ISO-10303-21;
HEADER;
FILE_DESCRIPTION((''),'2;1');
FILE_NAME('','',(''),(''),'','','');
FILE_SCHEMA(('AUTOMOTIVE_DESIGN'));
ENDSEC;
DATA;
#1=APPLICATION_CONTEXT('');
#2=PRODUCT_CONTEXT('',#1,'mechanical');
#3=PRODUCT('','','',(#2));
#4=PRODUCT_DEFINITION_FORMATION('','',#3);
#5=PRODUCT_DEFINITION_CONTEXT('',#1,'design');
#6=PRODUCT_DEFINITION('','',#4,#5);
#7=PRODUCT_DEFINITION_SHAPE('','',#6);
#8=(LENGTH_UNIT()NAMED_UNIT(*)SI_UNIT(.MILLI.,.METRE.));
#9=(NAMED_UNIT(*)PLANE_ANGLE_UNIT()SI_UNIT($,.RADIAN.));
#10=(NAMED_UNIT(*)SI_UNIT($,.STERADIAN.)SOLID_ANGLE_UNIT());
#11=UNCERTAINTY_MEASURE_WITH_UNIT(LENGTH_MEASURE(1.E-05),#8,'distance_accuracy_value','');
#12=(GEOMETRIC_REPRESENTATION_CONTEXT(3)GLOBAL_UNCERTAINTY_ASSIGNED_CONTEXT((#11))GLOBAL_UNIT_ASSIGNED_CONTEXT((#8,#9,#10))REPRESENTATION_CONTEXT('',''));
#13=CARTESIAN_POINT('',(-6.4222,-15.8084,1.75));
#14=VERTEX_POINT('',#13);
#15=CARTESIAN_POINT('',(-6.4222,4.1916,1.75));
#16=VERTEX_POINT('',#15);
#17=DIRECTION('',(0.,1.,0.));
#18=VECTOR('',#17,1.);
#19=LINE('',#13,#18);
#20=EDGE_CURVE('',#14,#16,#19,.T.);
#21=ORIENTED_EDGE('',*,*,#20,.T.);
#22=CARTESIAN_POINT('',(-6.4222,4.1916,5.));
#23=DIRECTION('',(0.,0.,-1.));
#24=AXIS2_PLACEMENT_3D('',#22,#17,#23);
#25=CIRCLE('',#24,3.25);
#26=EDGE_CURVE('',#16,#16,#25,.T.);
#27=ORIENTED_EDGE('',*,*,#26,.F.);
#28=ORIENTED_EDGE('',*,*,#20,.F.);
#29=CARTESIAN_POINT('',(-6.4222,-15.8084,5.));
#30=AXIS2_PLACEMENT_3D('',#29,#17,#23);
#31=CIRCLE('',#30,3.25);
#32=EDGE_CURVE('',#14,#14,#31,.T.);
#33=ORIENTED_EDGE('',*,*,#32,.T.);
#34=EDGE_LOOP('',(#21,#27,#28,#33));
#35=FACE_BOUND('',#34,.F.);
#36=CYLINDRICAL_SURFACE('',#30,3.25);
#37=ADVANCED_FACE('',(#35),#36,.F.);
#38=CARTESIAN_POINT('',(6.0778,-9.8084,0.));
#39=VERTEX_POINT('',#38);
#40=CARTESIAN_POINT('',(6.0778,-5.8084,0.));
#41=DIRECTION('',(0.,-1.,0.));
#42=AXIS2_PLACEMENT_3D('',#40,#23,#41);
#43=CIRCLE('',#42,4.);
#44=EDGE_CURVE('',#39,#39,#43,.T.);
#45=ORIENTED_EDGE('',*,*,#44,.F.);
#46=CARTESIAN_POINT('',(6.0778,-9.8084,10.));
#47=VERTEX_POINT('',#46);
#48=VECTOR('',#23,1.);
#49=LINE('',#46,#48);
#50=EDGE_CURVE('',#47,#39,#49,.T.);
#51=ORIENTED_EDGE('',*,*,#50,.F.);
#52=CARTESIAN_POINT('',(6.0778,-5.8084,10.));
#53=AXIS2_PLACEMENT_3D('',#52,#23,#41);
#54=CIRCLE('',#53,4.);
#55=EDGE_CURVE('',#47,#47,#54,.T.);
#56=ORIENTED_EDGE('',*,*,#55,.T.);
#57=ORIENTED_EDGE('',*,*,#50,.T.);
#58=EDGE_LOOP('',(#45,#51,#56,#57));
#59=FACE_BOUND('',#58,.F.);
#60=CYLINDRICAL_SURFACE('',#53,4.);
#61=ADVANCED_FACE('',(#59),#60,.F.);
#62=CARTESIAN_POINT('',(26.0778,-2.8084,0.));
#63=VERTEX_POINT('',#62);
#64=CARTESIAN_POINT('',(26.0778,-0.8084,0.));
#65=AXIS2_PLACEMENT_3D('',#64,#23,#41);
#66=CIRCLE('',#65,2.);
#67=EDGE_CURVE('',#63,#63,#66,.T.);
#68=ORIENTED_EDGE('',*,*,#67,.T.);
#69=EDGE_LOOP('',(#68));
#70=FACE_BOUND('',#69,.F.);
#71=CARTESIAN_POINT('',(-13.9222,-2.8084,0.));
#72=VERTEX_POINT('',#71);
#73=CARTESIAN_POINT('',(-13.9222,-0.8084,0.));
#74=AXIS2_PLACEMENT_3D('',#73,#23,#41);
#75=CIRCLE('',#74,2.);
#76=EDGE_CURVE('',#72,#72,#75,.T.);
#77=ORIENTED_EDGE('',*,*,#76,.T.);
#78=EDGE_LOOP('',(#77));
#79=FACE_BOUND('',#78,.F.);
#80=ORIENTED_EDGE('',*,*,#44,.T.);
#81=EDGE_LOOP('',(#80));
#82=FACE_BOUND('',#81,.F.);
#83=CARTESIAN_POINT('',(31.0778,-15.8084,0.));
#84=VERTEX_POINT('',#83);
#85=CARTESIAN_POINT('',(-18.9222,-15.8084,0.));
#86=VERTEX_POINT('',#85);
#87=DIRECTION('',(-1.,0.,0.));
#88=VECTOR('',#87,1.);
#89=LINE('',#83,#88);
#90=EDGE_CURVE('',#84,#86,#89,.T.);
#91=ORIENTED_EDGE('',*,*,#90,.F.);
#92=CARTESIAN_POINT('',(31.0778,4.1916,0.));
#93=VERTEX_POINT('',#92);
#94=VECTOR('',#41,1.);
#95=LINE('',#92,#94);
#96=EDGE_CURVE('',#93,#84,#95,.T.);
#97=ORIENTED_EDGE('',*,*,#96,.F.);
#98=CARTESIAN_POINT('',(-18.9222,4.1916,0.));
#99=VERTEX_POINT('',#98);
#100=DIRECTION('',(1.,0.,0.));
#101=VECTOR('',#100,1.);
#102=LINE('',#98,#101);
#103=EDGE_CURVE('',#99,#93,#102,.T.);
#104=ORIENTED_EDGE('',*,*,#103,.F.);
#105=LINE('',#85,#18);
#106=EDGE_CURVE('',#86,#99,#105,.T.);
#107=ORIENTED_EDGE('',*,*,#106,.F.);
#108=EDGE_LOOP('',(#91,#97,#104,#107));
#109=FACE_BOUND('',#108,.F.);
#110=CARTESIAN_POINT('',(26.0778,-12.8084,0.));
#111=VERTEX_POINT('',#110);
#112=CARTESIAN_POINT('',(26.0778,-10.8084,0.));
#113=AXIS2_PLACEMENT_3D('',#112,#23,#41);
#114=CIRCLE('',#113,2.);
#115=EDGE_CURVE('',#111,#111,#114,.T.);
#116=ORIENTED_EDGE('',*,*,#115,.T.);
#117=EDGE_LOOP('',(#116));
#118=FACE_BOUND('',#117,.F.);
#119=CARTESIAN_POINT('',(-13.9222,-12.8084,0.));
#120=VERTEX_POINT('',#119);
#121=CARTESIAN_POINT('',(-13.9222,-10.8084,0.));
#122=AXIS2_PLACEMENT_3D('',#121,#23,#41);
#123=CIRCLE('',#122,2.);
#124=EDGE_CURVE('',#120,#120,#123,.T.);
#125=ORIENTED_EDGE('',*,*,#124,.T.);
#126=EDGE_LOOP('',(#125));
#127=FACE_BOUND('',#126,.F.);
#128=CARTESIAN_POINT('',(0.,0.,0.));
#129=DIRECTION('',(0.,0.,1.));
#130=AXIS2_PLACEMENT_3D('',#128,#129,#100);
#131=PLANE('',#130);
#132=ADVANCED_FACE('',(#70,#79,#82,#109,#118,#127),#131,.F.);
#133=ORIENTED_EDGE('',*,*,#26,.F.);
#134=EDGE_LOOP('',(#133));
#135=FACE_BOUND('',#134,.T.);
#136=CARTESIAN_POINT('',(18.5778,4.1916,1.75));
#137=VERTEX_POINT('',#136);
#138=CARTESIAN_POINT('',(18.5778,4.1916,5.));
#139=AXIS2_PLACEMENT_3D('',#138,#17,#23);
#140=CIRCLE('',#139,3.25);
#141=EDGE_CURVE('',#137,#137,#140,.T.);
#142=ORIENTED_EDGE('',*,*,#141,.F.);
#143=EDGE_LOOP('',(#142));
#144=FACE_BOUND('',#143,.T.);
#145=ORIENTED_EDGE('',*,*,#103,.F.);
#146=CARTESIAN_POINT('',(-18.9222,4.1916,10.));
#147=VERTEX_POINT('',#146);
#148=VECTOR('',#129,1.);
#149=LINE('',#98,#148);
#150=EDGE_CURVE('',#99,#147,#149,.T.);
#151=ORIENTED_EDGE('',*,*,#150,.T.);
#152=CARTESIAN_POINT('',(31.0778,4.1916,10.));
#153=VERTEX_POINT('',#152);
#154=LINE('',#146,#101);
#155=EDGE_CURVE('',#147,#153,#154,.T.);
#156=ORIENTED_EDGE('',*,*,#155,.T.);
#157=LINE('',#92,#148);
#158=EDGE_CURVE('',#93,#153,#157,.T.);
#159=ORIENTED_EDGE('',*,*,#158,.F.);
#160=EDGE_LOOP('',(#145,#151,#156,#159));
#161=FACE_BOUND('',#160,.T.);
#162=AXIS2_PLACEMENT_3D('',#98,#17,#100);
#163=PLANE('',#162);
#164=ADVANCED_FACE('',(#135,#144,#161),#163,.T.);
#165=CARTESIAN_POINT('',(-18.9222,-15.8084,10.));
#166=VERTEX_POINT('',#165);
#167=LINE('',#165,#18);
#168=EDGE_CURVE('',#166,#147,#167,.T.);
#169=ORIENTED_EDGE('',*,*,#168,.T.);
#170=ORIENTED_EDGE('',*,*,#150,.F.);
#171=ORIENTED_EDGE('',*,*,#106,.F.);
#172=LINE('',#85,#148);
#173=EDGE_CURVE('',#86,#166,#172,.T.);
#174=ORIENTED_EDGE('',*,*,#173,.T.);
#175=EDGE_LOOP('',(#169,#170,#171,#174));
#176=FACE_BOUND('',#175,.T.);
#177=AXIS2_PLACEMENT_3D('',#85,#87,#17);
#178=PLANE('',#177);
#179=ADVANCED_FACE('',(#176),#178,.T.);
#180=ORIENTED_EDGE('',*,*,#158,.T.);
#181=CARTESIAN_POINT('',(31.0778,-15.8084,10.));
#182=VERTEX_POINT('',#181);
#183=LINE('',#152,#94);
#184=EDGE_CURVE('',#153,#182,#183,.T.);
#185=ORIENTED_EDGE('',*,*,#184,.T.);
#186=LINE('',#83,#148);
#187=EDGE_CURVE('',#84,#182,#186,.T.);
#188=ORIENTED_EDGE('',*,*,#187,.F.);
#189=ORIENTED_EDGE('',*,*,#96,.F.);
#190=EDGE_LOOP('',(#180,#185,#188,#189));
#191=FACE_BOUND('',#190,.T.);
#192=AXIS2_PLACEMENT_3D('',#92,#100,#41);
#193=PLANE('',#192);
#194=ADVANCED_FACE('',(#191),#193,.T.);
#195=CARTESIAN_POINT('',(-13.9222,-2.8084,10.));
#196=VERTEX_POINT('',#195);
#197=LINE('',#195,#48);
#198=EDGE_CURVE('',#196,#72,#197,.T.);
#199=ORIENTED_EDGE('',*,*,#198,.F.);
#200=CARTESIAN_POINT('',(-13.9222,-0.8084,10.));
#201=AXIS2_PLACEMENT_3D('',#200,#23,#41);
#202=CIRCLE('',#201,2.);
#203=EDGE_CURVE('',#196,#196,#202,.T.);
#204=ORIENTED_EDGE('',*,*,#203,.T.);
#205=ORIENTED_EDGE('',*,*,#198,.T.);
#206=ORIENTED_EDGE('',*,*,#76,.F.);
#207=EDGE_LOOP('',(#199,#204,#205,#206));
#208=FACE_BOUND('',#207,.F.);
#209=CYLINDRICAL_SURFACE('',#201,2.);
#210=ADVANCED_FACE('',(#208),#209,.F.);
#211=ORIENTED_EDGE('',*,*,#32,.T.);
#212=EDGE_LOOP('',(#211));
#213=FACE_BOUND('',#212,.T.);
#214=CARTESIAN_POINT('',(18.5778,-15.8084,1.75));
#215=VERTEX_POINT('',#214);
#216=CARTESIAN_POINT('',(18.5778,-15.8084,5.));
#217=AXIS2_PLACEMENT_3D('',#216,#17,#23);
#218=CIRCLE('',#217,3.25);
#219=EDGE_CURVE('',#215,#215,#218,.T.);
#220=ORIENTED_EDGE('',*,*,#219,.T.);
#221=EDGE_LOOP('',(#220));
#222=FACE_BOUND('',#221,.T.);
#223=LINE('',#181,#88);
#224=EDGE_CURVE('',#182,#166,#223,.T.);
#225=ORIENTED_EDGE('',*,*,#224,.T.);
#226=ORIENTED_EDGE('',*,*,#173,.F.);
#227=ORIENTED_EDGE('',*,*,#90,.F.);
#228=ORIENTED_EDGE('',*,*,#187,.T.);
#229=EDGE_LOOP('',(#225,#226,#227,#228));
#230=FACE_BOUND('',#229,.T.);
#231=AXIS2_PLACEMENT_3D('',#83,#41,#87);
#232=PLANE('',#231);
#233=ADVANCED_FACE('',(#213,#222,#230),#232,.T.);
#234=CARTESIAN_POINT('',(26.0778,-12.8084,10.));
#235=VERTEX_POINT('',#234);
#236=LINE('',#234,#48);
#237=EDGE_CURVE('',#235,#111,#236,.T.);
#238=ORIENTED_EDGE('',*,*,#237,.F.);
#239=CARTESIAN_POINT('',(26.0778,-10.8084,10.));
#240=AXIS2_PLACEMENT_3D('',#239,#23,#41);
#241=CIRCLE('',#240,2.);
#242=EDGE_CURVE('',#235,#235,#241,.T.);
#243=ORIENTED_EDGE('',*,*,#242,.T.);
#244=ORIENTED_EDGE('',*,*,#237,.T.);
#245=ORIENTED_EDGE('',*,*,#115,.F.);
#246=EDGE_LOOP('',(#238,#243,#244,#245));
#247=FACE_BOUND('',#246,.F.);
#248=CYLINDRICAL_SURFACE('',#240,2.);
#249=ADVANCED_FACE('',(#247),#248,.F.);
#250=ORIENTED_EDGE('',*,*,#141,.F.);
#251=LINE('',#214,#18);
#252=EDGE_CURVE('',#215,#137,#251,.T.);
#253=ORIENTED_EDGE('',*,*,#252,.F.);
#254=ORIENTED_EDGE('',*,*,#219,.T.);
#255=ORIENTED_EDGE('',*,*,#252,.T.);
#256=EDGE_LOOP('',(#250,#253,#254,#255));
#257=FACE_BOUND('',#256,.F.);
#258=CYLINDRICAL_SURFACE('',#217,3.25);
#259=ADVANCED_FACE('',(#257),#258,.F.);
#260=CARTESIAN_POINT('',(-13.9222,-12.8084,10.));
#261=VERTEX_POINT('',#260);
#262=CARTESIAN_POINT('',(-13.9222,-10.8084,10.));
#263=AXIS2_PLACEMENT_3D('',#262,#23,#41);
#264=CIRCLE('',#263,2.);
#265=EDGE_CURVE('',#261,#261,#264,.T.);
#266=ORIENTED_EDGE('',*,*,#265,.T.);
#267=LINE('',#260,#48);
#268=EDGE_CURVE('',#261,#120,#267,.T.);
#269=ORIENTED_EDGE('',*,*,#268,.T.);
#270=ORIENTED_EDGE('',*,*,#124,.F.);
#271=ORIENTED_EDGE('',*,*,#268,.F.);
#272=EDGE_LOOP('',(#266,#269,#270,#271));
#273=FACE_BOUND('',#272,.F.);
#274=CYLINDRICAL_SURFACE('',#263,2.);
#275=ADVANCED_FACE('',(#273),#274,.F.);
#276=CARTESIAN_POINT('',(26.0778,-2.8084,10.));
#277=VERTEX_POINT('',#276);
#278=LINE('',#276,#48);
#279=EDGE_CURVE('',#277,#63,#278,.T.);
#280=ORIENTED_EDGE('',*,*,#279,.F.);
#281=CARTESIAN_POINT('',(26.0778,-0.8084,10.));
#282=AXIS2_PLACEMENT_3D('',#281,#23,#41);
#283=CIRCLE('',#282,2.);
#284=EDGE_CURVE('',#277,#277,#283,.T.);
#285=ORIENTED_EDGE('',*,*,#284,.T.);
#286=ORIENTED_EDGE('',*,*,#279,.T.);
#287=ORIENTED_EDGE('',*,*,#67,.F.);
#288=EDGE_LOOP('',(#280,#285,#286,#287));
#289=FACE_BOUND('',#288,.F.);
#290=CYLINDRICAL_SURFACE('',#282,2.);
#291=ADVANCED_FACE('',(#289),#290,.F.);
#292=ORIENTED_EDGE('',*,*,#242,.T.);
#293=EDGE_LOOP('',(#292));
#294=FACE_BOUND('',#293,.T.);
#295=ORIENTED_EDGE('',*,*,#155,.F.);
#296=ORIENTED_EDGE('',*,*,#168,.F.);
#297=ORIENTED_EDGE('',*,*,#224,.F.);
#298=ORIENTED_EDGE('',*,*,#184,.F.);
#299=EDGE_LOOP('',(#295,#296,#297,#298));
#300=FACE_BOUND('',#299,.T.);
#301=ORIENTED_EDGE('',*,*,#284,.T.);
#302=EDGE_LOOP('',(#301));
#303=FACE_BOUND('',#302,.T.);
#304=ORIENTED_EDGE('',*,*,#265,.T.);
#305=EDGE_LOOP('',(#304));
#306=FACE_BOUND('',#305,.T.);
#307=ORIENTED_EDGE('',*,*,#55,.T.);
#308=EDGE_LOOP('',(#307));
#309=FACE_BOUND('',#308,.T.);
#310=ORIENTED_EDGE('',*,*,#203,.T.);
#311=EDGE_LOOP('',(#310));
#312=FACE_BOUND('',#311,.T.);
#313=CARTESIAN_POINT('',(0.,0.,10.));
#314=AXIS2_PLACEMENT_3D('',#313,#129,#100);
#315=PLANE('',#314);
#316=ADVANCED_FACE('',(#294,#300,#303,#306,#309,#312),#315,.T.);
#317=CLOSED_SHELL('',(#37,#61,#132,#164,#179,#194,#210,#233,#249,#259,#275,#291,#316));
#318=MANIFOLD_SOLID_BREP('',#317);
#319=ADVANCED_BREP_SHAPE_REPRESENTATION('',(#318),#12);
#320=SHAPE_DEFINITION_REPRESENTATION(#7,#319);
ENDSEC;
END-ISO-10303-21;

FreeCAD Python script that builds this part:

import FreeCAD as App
import Part
import Sketcher

V = App.Vector


def add_polygon(sketch, points):
    """Adds a closed chain of lines whose ends are joined by coincident constraints."""
    first, n = sketch.GeometryCount, len(points)
    for a, b in zip(points, points[1:] + points[:1]):
        sketch.addGeometry(Part.LineSegment(App.Vector(*a, 0), App.Vector(*b, 0)), False)
    for i in range(n):
        sketch.addConstraint(Sketcher.Constraint("Coincident", first + i, 2, first + (i + 1) % n, 1))

doc = App.newDocument("Part")
body = doc.addObject("PartDesign::Body", "Body")

sketch1 = doc.addObject("Sketcher::SketchObject", "Sketch")
body.addObject(sketch1)
sketch1.AttachmentSupport = (doc.XY_Plane, [""])
sketch1.MapMode = "FlatFace"
add_polygon(sketch1, [(31, 4), (-19, 4), (-19, -16), (31, -16)])
sketch1.addConstraint(Sketcher.Constraint("Horizontal", 0))
sketch1.addConstraint(Sketcher.Constraint("Vertical", 1))
sketch1.addConstraint(Sketcher.Constraint("Horizontal", 2))
sketch1.addConstraint(Sketcher.Constraint("Vertical", 3))
sketch1.addConstraint(Sketcher.Constraint("DistanceX", 0, 2, 0, 1, 50.0))
sketch1.addConstraint(Sketcher.Constraint("DistanceY", 1, 2, 1, 1, 20.0))
sketch1.addConstraint(Sketcher.Constraint("DistanceX", 0, 2, -1, 1, 18.9222))
sketch1.addConstraint(Sketcher.Constraint("DistanceY", -1, 1, 0, 2, 4.1916))
pad1 = doc.addObject("PartDesign::Pad", "Pad")
body.addObject(pad1)
pad1.Profile = sketch1
pad1.Length = 10

sketch2 = doc.addObject("Sketcher::SketchObject", "Sketch001")
body.addObject(sketch2)
sketch2.AttachmentSupport = (doc.XZ_Plane, [""])
sketch2.MapMode = "FlatFace"
sketch2.AttachmentOffset = App.Placement(V(0, 0, 15.8084), App.Rotation())
sketch2.addGeometry(Part.Circle(V(-6.4, 5, 0), V(0, 0, 1), 3.2), False)
sketch2.addGeometry(Part.Circle(V(18.6, 5, 0), V(0, 0, 1), 3.2), False)
sketch2.addConstraint(Sketcher.Constraint("Equal", 0, 1))
sketch2.addConstraint(Sketcher.Constraint("Horizontal", 0, 3, 1, 3))
sketch2.addConstraint(Sketcher.Constraint("Diameter", 0, 6.5))
sketch2.addConstraint(Sketcher.Constraint("DistanceY", -1, 1, 0, 3, 5.0))
sketch2.addConstraint(Sketcher.Constraint("DistanceX", 0, 3, 1, 3, 25.0))
sketch2.addConstraint(Sketcher.Constraint("DistanceX", 0, 3, -1, 1, 6.4222))
doc.recompute()
hole = doc.addObject("PartDesign::Hole", "Hole")
body.addObject(hole)
hole.Profile = sketch2
hole.ThreadType = "None"
hole.Diameter = 6.5
hole.DepthType = "ThroughAll"

sketch3 = doc.addObject("Sketcher::SketchObject", "Sketch002")
body.addObject(sketch3)
sketch3.AttachmentSupport = (doc.XY_Plane, [""])
sketch3.MapMode = "FlatFace"
sketch3.AttachmentOffset = App.Placement(V(0, 0, 10), App.Rotation())
sketch3.addGeometry(Part.Circle(V(6.1, -5.8, 0), V(0, 0, 1), 4), False)
sketch3.addConstraint(Sketcher.Constraint("Diameter", 0, 8.0))
sketch3.addConstraint(Sketcher.Constraint("DistanceX", -1, 1, 0, 3, 6.0778))
sketch3.addConstraint(Sketcher.Constraint("DistanceY", 0, 3, -1, 1, 5.8084))
doc.recompute()
hole2 = doc.addObject("PartDesign::Hole", "Hole001")
body.addObject(hole2)
hole2.Profile = sketch3
hole2.ThreadType = "None"
hole2.Diameter = 8
hole2.DepthType = "ThroughAll"

sketch4 = doc.addObject("Sketcher::SketchObject", "Sketch003")
body.addObject(sketch4)
sketch4.AttachmentSupport = (doc.XY_Plane, [""])
sketch4.MapMode = "FlatFace"
sketch4.AttachmentOffset = App.Placement(V(0, 0, 10), App.Rotation())
sketch4.addGeometry(Part.Circle(V(-13.9, -0.8, 0), V(0, 0, 1), 2), False)
sketch4.addGeometry(Part.Circle(V(26.1, -0.8, 0), V(0, 0, 1), 2), False)
sketch4.addGeometry(Part.Circle(V(26.1, -10.8, 0), V(0, 0, 1), 2), False)
sketch4.addGeometry(Part.Circle(V(-13.9, -10.8, 0), V(0, 0, 1), 2), False)
sketch4.addConstraint(Sketcher.Constraint("Equal", 0, 1))
sketch4.addConstraint(Sketcher.Constraint("Equal", 1, 2))
sketch4.addConstraint(Sketcher.Constraint("Equal", 2, 3))
sketch4.addConstraint(Sketcher.Constraint("Horizontal", 0, 3, 1, 3))
sketch4.addConstraint(Sketcher.Constraint("Horizontal", 2, 3, 3, 3))
sketch4.addConstraint(Sketcher.Constraint("Vertical", 1, 3, 2, 3))
sketch4.addConstraint(Sketcher.Constraint("Vertical", 0, 3, 3, 3))
sketch4.addConstraint(Sketcher.Constraint("Diameter", 0, 4.0))
sketch4.addConstraint(Sketcher.Constraint("DistanceX", 0, 3, 1, 3, 40.0))
sketch4.addConstraint(Sketcher.Constraint("DistanceY", 2, 3, 1, 3, 10.0))
sketch4.addConstraint(Sketcher.Constraint("DistanceX", 0, 3, -1, 1, 13.9222))
sketch4.addConstraint(Sketcher.Constraint("DistanceY", 0, 3, -1, 1, 0.8084))
doc.recompute()
hole3 = doc.addObject("PartDesign::Hole", "Hole002")
body.addObject(hole3)
hole3.Profile = sketch4
hole3.ThreadType = "None"
hole3.Diameter = 4
hole3.DepthType = "ThroughAll"

doc.recompute()
